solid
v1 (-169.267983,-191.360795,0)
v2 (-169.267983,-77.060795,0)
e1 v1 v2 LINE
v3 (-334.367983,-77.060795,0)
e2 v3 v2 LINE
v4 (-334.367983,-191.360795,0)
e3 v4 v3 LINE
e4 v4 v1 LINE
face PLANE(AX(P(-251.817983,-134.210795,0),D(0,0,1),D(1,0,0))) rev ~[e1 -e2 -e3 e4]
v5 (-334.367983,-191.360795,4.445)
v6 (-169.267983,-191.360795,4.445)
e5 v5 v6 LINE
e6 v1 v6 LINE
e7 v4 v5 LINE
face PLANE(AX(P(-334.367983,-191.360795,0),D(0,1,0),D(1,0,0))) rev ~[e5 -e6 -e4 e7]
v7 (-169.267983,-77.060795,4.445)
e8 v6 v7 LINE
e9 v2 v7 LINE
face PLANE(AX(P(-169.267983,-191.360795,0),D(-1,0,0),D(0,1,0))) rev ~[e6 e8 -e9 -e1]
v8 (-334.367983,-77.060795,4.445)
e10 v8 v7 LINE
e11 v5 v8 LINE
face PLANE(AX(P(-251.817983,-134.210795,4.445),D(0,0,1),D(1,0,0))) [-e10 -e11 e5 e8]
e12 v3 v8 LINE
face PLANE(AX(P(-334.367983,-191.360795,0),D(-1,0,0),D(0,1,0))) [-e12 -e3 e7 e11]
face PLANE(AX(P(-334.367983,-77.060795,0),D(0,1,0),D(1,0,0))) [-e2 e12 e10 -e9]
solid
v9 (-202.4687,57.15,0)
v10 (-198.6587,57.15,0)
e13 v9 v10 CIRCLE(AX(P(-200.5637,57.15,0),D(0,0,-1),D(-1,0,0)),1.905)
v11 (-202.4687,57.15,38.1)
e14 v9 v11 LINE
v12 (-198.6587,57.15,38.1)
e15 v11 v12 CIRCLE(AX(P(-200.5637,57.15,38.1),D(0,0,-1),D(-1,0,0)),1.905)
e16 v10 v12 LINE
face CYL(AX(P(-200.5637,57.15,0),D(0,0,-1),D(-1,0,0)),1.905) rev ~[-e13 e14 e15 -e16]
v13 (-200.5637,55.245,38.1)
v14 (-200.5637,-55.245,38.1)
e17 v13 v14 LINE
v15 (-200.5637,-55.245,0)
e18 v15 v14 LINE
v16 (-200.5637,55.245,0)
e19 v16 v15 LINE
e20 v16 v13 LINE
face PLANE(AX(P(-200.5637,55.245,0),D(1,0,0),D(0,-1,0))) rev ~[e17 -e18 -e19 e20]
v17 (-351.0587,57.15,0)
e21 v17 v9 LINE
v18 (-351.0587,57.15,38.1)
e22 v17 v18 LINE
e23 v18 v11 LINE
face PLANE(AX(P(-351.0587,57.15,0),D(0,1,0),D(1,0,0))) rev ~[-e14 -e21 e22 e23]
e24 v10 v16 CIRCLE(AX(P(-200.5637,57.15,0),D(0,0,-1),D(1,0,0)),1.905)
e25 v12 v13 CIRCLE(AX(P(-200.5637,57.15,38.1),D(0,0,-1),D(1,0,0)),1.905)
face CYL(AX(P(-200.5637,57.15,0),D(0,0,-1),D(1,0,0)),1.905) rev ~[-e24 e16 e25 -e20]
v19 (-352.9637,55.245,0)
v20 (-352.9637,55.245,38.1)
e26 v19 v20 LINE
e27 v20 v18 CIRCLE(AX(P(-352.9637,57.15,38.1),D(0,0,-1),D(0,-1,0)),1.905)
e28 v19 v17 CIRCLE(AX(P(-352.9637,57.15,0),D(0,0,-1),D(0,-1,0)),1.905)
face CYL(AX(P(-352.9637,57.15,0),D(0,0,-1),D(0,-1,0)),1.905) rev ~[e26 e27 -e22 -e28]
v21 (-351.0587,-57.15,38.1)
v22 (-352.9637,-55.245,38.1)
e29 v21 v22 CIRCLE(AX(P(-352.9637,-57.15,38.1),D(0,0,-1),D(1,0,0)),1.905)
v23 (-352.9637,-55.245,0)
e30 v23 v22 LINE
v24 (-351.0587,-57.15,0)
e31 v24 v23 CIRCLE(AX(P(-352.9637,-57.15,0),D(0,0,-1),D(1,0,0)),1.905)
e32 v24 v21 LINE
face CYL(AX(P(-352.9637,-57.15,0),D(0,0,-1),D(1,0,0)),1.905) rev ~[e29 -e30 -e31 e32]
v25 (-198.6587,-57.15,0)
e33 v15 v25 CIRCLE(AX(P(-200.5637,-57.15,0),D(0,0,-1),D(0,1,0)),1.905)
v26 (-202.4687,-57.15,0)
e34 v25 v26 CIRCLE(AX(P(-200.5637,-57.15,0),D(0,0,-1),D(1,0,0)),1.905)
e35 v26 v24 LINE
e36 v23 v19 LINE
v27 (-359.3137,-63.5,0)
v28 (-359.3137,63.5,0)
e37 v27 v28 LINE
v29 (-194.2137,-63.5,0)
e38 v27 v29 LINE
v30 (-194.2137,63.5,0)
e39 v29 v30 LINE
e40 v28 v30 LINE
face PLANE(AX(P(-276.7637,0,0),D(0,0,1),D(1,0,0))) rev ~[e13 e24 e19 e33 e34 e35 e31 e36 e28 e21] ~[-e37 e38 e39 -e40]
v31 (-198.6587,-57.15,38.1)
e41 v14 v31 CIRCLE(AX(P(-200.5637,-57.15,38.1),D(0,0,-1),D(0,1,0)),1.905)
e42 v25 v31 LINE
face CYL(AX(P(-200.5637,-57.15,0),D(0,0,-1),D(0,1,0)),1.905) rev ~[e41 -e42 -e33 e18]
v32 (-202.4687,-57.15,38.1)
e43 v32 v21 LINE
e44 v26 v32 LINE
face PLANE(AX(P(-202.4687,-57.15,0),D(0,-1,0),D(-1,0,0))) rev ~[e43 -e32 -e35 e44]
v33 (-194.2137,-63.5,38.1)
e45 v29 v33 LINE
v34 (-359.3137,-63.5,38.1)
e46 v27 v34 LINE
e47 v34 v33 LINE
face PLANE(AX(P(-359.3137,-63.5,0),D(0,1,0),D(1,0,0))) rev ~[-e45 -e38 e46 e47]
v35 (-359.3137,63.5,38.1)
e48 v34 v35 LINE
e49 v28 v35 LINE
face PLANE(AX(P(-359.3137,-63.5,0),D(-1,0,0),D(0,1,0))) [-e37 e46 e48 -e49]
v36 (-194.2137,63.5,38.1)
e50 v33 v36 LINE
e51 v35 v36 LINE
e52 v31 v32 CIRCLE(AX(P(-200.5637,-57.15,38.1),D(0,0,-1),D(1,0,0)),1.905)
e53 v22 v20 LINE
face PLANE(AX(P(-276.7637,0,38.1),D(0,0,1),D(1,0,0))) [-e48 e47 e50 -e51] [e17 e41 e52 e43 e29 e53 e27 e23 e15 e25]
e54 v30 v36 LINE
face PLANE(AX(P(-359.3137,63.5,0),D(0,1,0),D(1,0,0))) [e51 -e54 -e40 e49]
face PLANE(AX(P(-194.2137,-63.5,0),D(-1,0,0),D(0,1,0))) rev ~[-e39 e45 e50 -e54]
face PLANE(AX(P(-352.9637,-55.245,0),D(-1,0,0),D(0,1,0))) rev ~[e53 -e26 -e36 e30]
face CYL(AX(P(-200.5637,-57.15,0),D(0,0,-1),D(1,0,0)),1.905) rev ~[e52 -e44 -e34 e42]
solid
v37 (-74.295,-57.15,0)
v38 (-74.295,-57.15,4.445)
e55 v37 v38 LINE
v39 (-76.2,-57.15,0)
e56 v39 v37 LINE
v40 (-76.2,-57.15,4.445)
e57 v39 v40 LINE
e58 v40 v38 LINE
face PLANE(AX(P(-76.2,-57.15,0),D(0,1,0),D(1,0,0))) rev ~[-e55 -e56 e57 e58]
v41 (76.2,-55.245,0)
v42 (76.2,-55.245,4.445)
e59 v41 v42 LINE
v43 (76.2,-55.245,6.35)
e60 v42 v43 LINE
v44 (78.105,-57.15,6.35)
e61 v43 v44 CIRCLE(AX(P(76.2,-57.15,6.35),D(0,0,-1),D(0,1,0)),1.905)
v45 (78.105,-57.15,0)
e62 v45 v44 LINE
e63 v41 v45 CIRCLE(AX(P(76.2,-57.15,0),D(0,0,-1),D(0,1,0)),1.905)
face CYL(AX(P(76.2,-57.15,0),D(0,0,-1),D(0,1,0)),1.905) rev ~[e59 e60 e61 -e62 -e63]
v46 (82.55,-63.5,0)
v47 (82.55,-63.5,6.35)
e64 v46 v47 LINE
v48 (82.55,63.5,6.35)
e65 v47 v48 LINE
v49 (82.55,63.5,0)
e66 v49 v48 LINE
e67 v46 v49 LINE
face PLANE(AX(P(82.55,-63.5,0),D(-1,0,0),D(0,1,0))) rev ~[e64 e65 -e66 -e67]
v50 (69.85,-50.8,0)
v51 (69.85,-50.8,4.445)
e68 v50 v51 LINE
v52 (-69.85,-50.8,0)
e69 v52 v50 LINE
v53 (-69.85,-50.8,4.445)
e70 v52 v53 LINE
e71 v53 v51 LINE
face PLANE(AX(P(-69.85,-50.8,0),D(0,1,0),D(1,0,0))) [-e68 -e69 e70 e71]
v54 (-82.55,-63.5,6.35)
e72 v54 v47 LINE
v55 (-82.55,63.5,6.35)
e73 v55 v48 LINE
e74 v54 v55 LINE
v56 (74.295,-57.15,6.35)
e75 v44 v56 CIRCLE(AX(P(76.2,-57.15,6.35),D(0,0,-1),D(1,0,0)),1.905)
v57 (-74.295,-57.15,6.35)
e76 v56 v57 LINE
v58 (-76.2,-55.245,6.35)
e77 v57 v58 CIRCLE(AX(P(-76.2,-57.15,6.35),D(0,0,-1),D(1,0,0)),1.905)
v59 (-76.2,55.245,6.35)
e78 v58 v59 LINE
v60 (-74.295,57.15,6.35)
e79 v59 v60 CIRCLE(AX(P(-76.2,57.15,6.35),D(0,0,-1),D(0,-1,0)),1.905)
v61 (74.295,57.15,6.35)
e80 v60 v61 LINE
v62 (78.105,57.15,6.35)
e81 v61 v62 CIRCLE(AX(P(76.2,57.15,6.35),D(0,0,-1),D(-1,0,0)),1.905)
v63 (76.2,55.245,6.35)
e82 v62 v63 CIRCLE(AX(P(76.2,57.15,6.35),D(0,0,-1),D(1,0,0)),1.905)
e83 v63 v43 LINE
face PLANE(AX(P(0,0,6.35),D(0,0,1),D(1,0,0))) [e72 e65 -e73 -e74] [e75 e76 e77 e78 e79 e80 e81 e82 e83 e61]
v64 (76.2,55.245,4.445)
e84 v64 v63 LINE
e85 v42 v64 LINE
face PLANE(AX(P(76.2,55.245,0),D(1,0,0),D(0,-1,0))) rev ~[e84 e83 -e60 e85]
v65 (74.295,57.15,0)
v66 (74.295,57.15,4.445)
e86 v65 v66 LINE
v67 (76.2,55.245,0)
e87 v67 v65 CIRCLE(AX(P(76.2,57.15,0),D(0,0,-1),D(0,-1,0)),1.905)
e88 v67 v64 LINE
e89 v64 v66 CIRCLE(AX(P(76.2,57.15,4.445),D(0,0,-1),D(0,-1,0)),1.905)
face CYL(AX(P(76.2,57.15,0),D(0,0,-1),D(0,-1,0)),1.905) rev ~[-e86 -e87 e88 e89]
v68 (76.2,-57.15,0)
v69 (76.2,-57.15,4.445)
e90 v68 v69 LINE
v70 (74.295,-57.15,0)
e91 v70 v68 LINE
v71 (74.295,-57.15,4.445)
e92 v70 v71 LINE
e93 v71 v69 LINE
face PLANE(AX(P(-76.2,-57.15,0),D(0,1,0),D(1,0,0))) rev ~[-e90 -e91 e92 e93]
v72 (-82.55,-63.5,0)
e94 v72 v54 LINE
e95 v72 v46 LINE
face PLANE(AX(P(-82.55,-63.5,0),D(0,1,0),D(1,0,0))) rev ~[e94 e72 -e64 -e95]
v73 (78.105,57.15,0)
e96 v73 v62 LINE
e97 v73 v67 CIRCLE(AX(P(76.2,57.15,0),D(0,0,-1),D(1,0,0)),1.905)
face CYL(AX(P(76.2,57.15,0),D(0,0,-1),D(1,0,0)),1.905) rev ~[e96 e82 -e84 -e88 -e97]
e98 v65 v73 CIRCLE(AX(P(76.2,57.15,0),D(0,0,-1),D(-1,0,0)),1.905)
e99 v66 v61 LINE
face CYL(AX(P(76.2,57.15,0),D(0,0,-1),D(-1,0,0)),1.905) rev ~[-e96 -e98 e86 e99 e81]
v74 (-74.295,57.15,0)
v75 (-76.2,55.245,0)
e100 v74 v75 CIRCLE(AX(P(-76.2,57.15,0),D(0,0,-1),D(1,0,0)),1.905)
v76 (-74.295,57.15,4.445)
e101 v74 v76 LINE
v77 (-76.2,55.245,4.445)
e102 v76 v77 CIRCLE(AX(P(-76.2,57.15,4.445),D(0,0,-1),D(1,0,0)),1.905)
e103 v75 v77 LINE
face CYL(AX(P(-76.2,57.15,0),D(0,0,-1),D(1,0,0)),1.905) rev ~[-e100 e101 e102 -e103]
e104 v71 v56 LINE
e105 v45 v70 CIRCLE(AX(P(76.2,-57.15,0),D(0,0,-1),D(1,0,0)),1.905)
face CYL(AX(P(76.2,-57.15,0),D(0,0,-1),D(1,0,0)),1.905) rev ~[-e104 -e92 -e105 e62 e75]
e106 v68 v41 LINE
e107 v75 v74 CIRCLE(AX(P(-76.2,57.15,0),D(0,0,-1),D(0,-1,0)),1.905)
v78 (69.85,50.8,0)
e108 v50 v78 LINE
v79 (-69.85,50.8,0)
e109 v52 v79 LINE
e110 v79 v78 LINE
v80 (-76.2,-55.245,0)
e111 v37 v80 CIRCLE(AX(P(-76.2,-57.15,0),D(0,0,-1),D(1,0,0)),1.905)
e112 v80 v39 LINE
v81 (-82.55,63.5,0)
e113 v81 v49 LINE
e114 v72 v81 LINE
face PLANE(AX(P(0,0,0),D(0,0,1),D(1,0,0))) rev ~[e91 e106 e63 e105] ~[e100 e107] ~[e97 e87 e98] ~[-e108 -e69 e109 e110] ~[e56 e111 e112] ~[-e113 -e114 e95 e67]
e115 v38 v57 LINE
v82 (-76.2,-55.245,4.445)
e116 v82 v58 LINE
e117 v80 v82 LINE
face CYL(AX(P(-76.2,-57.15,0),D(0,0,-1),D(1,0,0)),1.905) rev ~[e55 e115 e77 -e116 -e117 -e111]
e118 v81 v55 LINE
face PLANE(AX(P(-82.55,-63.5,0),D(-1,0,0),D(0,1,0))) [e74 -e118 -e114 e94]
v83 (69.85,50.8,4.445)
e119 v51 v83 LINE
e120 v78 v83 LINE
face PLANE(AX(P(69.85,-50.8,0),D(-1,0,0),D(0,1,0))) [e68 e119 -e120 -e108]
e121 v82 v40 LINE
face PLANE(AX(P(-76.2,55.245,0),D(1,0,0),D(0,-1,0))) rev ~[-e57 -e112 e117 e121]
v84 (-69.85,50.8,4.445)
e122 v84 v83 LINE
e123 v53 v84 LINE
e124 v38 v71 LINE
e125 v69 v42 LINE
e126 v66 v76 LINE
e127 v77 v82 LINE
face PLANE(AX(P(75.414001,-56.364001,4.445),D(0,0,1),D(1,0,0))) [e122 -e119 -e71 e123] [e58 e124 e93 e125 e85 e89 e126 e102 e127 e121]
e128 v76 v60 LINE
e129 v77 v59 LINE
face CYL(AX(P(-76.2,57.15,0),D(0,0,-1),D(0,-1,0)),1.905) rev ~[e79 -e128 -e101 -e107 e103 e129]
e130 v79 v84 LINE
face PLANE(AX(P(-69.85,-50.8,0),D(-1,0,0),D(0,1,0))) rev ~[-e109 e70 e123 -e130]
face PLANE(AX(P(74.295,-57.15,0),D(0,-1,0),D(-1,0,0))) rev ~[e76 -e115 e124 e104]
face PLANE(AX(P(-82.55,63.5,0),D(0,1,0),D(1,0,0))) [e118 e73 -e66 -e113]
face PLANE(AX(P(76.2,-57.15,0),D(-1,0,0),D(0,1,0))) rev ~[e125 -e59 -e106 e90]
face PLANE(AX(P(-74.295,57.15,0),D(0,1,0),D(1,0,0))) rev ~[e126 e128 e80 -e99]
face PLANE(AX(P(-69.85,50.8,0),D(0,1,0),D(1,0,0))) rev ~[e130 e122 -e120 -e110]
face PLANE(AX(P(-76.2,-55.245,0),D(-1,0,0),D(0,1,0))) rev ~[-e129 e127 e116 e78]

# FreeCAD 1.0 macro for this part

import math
import FreeCAD as App
import Part
import Sketcher
Q = App.Units.Quantity


def add_polygon(sketch, points):
    """Adds a closed chain of lines whose ends are joined by coincident constraints."""
    first, n = sketch.GeometryCount, len(points)
    for a, b in zip(points, points[1:] + points[:1]):
        sketch.addGeometry(Part.LineSegment(App.Vector(*a, 0), App.Vector(*b, 0)), False)
    for i in range(n):
        sketch.addConstraint(Sketcher.Constraint("Coincident", first + i, 2, first + (i + 1) % n, 1))

doc = App.newDocument("Part")
body = doc.addObject("PartDesign::Body", "Body")

# Sketch on XY plane
sketch1 = body.newObject("Sketcher::SketchObject", "Sketch")
sketch1.AttachmentSupport = (doc.getObject("XY_Plane"), [""])
sketch1.MapMode = "FlatFace"
sketch1.addGeometry(Part.LineSegment(App.Vector(76.2, -57.1, 0), App.Vector(76.2, 55.2, 0)), False)  # 0
sketch1.addGeometry(Part.ArcOfCircle(Part.Circle(App.Vector(76.2, 57.1, 0), App.Vector(0, 0, 1), 1.9), math.radians(180), math.radians(270)), False)  # 1
sketch1.addGeometry(Part.LineSegment(App.Vector(74.3, 57.1, 0), App.Vector(-74.3, 57.1, 0)), False)  # 2
sketch1.addGeometry(Part.ArcOfCircle(Part.Circle(App.Vector(-76.2, 57.1, 0), App.Vector(0, 0, 1), 1.9), math.radians(-90), math.radians(0)), False)  # 3
sketch1.addGeometry(Part.LineSegment(App.Vector(-76.2, 55.2, 0), App.Vector(-76.2, -57.1, 0)), False)  # 4
sketch1.addGeometry(Part.LineSegment(App.Vector(-76.2, -57.1, 0), App.Vector(76.2, -57.1, 0)), False)  # 5
add_polygon(sketch1, [(69.8, -50.8), (-69.8, -50.8), (-69.8, 50.8), (69.8, 50.8)])  # lines 6-9
sketch1.addConstraint([
    Sketcher.Constraint("Coincident", 0, 2, 1, 2),
    Sketcher.Constraint("Coincident", 1, 1, 2, 1),
    Sketcher.Constraint("Coincident", 2, 2, 3, 2),
    Sketcher.Constraint("Coincident", 3, 1, 4, 1),
    Sketcher.Constraint("Coincident", 4, 2, 5, 1),
    Sketcher.Constraint("Coincident", 5, 2, 0, 1),
    Sketcher.Constraint("Vertical", 0),
    Sketcher.Constraint("Horizontal", 2),
    Sketcher.Constraint("Vertical", 4),
    Sketcher.Constraint("Horizontal", 5),
    Sketcher.Constraint("Horizontal", 6),
    Sketcher.Constraint("Vertical", 7),
    Sketcher.Constraint("Horizontal", 8),
    Sketcher.Constraint("Vertical", 9),
    Sketcher.Constraint("Equal", 1, 3),
    Sketcher.Constraint("Symmetric", 6, 2, 8, 2, -1, 1),
    Sketcher.Constraint("Symmetric", 1, 3, 3, 3, -2),
    Sketcher.Constraint("Horizontal", 3, 3, 1, 1),
    Sketcher.Constraint("Vertical", 1, 3, 0, 2),
    Sketcher.Constraint("DistanceX", 5, 1, 5, 2, Q("6 in")),
    Sketcher.Constraint("DistanceY", 7, 1, 7, 2, Q("4 in")),
    Sketcher.Constraint("DistanceX", 6, 2, 6, 1, Q("5.5 in")),
    Sketcher.Constraint("DistanceX", -1, 1, 1, 3, Q("3 in")),
    Sketcher.Constraint("Radius", 1, Q("0.075 in")),
    Sketcher.Constraint("DistanceY", 4, 2, 3, 3, Q("4.5 in")),
    Sketcher.Constraint("DistanceY", -1, 1, 1, 3, Q("2.25 in")),
])
pad1 = body.newObject("PartDesign::Pad", "Pad")
pad1.Profile = sketch1
pad1.Length = Q("0.175 in")

# Sketch on XY plane
sketch2 = body.newObject("Sketcher::SketchObject", "Sketch001")
sketch2.AttachmentSupport = (doc.getObject("XY_Plane"), [""])
sketch2.MapMode = "FlatFace"
add_polygon(sketch2, [(-82.5, 63.5), (-82.5, -63.5), (82.5, -63.5), (82.5, 63.5)])  # lines 0-3
sketch2.addGeometry(Part.ArcOfCircle(Part.Circle(App.Vector(76.2, -57.1, 0), App.Vector(0, 0, 1), 1.9), math.radians(180), math.radians(360)), False)  # 4
sketch2.addGeometry(Part.LineSegment(App.Vector(74.3, -57.1, 0), App.Vector(-74.3, -57.1, 0)), False)  # 5
sketch2.addGeometry(Part.ArcOfCircle(Part.Circle(App.Vector(-76.2, -57.1, 0), App.Vector(0, 0, 1), 1.9), math.radians(90), math.radians(360)), False)  # 6
sketch2.addGeometry(Part.LineSegment(App.Vector(-76.2, -55.2, 0), App.Vector(-76.2, 55.2, 0)), False)  # 7
sketch2.addGeometry(Part.ArcOfCircle(Part.Circle(App.Vector(-76.2, 57.1, 0), App.Vector(0, 0, 1), 1.9), math.radians(0), math.radians(270)), False)  # 8
sketch2.addGeometry(Part.LineSegment(App.Vector(-74.3, 57.1, 0), App.Vector(74.3, 57.1, 0)), False)  # 9
sketch2.addGeometry(Part.ArcOfCircle(Part.Circle(App.Vector(76.2, 57.1, 0), App.Vector(0, 0, 1), 1.9), math.radians(0), math.radians(180)), False)  # 10
sketch2.addGeometry(Part.ArcOfCircle(Part.Circle(App.Vector(76.2, 57.1, 0), App.Vector(0, 0, 1), 1.9), math.radians(-90), math.radians(0)), False)  # 11
sketch2.addGeometry(Part.LineSegment(App.Vector(76.2, 55.2, 0), App.Vector(76.2, -55.2, 0)), False)  # 12
sketch2.addGeometry(Part.ArcOfCircle(Part.Circle(App.Vector(76.2, -57.1, 0), App.Vector(0, 0, 1), 1.9), math.radians(0), math.radians(90)), False)  # 13
sketch2.addConstraint([
    Sketcher.Constraint("Coincident", 4, 1, 5, 1),
    Sketcher.Constraint("Coincident", 5, 2, 6, 2),
    Sketcher.Constraint("Coincident", 6, 1, 7, 1),
    Sketcher.Constraint("Coincident", 7, 2, 8, 2),
    Sketcher.Constraint("Coincident", 8, 1, 9, 1),
    Sketcher.Constraint("Coincident", 9, 2, 10, 2),
    Sketcher.Constraint("Tangent", 10, 1, 11, 2),
    Sketcher.Constraint("Coincident", 11, 1, 12, 1),
    Sketcher.Constraint("Coincident", 12, 2, 13, 2),
    Sketcher.Constraint("Tangent", 13, 1, 4, 2),
    Sketcher.Constraint("Vertical", 0),
    Sketcher.Constraint("Horizontal", 1),
    Sketcher.Constraint("Vertical", 2),
    Sketcher.Constraint("Horizontal", 3),
    Sketcher.Constraint("Horizontal", 5),
    Sketcher.Constraint("Vertical", 7),
    Sketcher.Constraint("Horizontal", 9),
    Sketcher.Constraint("Vertical", 12),
    Sketcher.Constraint("Equal", 4, 6),
    Sketcher.Constraint("Equal", 6, 8),
    Sketcher.Constraint("Equal", 8, 10),
    Sketcher.Constraint("Equal", 10, 11),
    Sketcher.Constraint("Equal", 11, 13),
    Sketcher.Constraint("Symmetric", 4, 3, 8, 3, -1, 1),
    Sketcher.Constraint("Symmetric", 6, 3, 10, 3, -1, 1),
    Sketcher.Constraint("Symmetric", 0, 2, 2, 2, -1, 1),
    Sketcher.Constraint("Symmetric", 4, 3, 6, 3, -2),
    Sketcher.Constraint("Horizontal", 13, 3, 4, 1),
    Sketcher.Constraint("Horizontal", 11, 3, 8, 1),
    Sketcher.Constraint("Horizontal", 9, 2, 10, 1),
    Sketcher.Constraint("Horizontal", 5, 2, 13, 1),
    Sketcher.Constraint("Vertical", 8, 3, 6, 1),
    Sketcher.Constraint("Vertical", 13, 3, 11, 1),
    Sketcher.Constraint("DistanceY", 0, 2, 0, 1, Q("5 in")),
    Sketcher.Constraint("DistanceX", 1, 1, 1, 2, Q("6.5 in")),
    Sketcher.Constraint("DistanceX", -1, 1, 4, 3, Q("3 in")),
    Sketcher.Constraint("Radius", 4, Q("0.075 in")),
    Sketcher.Constraint("DistanceY", 7, 1, 7, 2, Q("4.35 in")),
])
pad2 = body.newObject("PartDesign::Pad", "Pad001")
pad2.Profile = sketch2
pad2.Length = Q("0.25 in")
body2 = doc.addObject("PartDesign::Body", "Body001")

# Sketch on XY plane
sketch3 = body2.newObject("Sketcher::SketchObject", "Sketch002")
sketch3.AttachmentSupport = (doc.getObject("XY_Plane001"), [""])
sketch3.MapMode = "FlatFace"
add_polygon(sketch3, [(-359.3, 63.5), (-359.3, -63.5), (-194.2, -63.5), (-194.2, 63.5)])  # lines 0-3
sketch3.addGeometry(Part.ArcOfCircle(Part.Circle(App.Vector(-200.6, -57.1, 0), App.Vector(0, 0, 1), 1.9), math.radians(180), math.radians(360)), False)  # 4
sketch3.addGeometry(Part.LineSegment(App.Vector(-202.5, -57.1, 0), App.Vector(-351.1, -57.1, 0)), False)  # 5
sketch3.addGeometry(Part.ArcOfCircle(Part.Circle(App.Vector(-353, -57.1, 0), App.Vector(0, 0, 1), 1.9), math.radians(90), math.radians(360)), False)  # 6
sketch3.addGeometry(Part.LineSegment(App.Vector(-353, -55.2, 0), App.Vector(-353, 55.2, 0)), False)  # 7
sketch3.addGeometry(Part.ArcOfCircle(Part.Circle(App.Vector(-353, 57.1, 0), App.Vector(0, 0, 1), 1.9), math.radians(0), math.radians(270)), False)  # 8
sketch3.addGeometry(Part.LineSegment(App.Vector(-351.1, 57.1, 0), App.Vector(-202.5, 57.1, 0)), False)  # 9
sketch3.addGeometry(Part.ArcOfCircle(Part.Circle(App.Vector(-200.6, 57.1, 0), App.Vector(0, 0, 1), 1.9), math.radians(0), math.radians(180)), False)  # 10
sketch3.addGeometry(Part.ArcOfCircle(Part.Circle(App.Vector(-200.6, 57.1, 0), App.Vector(0, 0, 1), 1.9), math.radians(-90), math.radians(0)), False)  # 11
sketch3.addGeometry(Part.LineSegment(App.Vector(-200.6, 55.2, 0), App.Vector(-200.6, -55.2, 0)), False)  # 12
sketch3.addGeometry(Part.ArcOfCircle(Part.Circle(App.Vector(-200.6, -57.1, 0), App.Vector(0, 0, 1), 1.9), math.radians(0), math.radians(90)), False)  # 13
sketch3.addConstraint([
    Sketcher.Constraint("Coincident", 4, 1, 5, 1),
    Sketcher.Constraint("Coincident", 5, 2, 6, 2),
    Sketcher.Constraint("Coincident", 6, 1, 7, 1),
    Sketcher.Constraint("Coincident", 7, 2, 8, 2),
    Sketcher.Constraint("Coincident", 8, 1, 9, 1),
    Sketcher.Constraint("Coincident", 9, 2, 10, 2),
    Sketcher.Constraint("Tangent", 10, 1, 11, 2),
    Sketcher.Constraint("Coincident", 11, 1, 12, 1),
    Sketcher.Constraint("Coincident", 12, 2, 13, 2),
    Sketcher.Constraint("Tangent", 13, 1, 4, 2),
    Sketcher.Constraint("Vertical", 0),
    Sketcher.Constraint("Horizontal", 1),
    Sketcher.Constraint("Vertical", 2),
    Sketcher.Constraint("Horizontal", 3),
    Sketcher.Constraint("Horizontal", 5),
    Sketcher.Constraint("Vertical", 7),
    Sketcher.Constraint("Horizontal", 9),
    Sketcher.Constraint("Vertical", 12),
    Sketcher.Constraint("Equal", 4, 6),
    Sketcher.Constraint("Equal", 6, 8),
    Sketcher.Constraint("Equal", 8, 10),
    Sketcher.Constraint("Equal", 10, 11),
    Sketcher.Constraint("Equal", 11, 13),
    Sketcher.Constraint("Symmetric", 6, 3, 8, 3, -1),
    Sketcher.Constraint("Symmetric", 4, 3, 10, 3, -1),
    Sketcher.Constraint("Horizontal", 4, 3, 6, 3),
    Sketcher.Constraint("Horizontal", 13, 3, 4, 1),
    Sketcher.Constraint("Horizontal", 11, 3, 8, 1),
    Sketcher.Constraint("Horizontal", 9, 2, 10, 1),
    Sketcher.Constraint("Horizontal", 5, 2, 13, 1),
    Sketcher.Constraint("Vertical", 8, 3, 6, 1),
    Sketcher.Constraint("Vertical", 13, 3, 11, 1),
    Sketcher.Constraint("DistanceY", 0, 2, 0, 1, Q("5 in")),
    Sketcher.Constraint("DistanceX", 1, 1, 1, 2, Q("6.5 in")),
    Sketcher.Constraint("Radius", 4, Q("0.075 in")),
    Sketcher.Constraint("DistanceX", 6, 3, 4, 3, Q("6 in")),
    Sketcher.Constraint("DistanceY", 7, 1, 7, 2, Q("4.35 in")),
    Sketcher.Constraint("DistanceY", 0, 2, -1, 1, Q("2.5 in")),
    Sketcher.Constraint("DistanceX", 0, 2, 6, 3, Q("0.25 in")),
    Sketcher.Constraint("DistanceX", 4, 3, -1, 1, 200.5637),
])
pad3 = body2.newObject("PartDesign::Pad", "Pad002")
pad3.Profile = sketch3
pad3.Length = Q("1.5 in")
body3 = doc.addObject("PartDesign::Body", "Body002")

# Sketch on XY plane
sketch4 = body3.newObject("Sketcher::SketchObject", "Sketch003")
sketch4.AttachmentSupport = (doc.getObject("XY_Plane002"), [""])
sketch4.MapMode = "FlatFace"
add_polygon(sketch4, [(-334, -77), (-334, -191), (-169, -191), (-169, -77)])  # lines 0-3
sketch4.addConstraint([
    Sketcher.Constraint("Vertical", 0),
    Sketcher.Constraint("Horizontal", 1),
    Sketcher.Constraint("Vertical", 2),
    Sketcher.Constraint("Horizontal", 3),
    Sketcher.Constraint("DistanceX", 1, 1, 1, 2, Q("6.5 in")),
    Sketcher.Constraint("DistanceY", 0, 2, 0, 1, Q("4.5 in")),
    Sketcher.Constraint("DistanceX", 0, 2, -1, 1, 334.367983),
    Sketcher.Constraint("DistanceY", 0, 2, -1, 1, 191.360795),
])
pad4 = body3.newObject("PartDesign::Pad", "Pad003")
pad4.Profile = sketch4
pad4.Length = Q("0.175 in")

doc.recompute()
